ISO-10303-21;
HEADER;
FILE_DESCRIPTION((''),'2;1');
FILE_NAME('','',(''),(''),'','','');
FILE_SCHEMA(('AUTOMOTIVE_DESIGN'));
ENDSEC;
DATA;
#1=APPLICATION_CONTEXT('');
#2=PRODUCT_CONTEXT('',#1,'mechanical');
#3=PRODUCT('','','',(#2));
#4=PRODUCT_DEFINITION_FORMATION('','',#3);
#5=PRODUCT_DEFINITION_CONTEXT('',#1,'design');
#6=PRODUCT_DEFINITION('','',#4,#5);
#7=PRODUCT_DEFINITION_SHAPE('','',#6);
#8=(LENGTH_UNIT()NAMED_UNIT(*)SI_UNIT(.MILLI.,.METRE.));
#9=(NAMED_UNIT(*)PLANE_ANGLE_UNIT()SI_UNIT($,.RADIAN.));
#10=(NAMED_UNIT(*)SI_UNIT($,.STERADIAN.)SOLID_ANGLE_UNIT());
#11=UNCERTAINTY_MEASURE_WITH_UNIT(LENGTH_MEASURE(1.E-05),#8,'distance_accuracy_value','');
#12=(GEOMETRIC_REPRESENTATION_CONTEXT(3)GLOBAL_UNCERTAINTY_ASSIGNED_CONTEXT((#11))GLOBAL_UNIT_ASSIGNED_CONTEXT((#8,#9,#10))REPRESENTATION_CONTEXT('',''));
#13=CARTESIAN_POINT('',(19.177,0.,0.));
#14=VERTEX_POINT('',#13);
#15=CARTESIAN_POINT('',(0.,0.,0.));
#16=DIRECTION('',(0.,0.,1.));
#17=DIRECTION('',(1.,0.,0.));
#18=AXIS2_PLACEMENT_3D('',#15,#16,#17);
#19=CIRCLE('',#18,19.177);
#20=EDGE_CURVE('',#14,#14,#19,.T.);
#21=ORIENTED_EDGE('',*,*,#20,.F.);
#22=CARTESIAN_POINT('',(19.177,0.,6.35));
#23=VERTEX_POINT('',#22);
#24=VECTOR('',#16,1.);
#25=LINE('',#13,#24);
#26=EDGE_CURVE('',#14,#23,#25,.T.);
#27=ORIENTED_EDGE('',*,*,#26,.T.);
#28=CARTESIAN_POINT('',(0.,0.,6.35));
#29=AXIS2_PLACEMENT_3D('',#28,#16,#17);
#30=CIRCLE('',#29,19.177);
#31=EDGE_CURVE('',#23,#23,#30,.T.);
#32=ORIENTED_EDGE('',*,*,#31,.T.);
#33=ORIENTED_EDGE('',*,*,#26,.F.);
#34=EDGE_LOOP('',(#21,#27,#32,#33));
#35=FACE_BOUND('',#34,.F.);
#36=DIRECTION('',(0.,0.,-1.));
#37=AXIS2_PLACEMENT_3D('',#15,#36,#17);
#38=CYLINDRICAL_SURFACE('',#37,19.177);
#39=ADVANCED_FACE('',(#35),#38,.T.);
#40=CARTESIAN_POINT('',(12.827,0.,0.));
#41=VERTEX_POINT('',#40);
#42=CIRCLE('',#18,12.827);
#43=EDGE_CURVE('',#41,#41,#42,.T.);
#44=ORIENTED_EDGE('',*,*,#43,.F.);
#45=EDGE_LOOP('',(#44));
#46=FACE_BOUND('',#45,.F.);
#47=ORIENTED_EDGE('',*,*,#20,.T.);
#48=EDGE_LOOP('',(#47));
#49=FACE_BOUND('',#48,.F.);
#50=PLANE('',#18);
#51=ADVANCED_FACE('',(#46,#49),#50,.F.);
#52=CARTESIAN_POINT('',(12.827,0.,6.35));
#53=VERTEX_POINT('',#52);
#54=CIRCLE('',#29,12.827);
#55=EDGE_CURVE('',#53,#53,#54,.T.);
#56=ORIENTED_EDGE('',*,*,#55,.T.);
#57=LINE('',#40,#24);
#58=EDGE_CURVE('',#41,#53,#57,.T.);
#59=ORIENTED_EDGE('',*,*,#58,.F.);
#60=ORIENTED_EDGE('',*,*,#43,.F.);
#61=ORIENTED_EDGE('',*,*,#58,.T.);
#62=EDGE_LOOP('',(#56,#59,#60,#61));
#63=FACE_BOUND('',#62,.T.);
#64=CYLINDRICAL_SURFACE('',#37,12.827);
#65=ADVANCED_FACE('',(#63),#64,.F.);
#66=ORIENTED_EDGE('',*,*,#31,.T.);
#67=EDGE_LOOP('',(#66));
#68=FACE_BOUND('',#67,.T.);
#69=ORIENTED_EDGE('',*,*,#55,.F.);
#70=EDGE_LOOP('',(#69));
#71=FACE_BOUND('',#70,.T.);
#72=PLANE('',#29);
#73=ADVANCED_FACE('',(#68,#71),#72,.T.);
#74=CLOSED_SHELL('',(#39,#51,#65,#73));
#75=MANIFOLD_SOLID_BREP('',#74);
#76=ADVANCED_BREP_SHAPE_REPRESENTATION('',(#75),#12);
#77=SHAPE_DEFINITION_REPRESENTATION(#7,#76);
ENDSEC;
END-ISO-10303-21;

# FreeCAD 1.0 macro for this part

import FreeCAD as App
import Part
import Sketcher
from FreeCAD import Vector
Q = App.Units.Quantity

doc = App.newDocument("Part")
params = doc.addObject("Spreadsheet::Sheet", "Params")
for row, (alias, value) in enumerate([
    ("sketch1_diameter", "1.01 in"),
    ("sketch1_diameter2", "1.51 in"),
    ("pad1_length", "0.25 in"),
], start=1):
    params.set(f"A{row}", alias)
    params.set(f"B{row}", "=" + value)
    params.setAlias(f"B{row}", alias)

body = doc.addObject("PartDesign::Body", "Body")

sketch1 = body.newObject("Sketcher::SketchObject", "Sketch")
sketch1.AttachmentSupport = (doc.getObject("XY_Plane"), [""])
sketch1.MapMode = "FlatFace"
sketch1.addGeometry([
    Part.Circle(Vector(0, 0, 0), Vector(0, 0, 1), 19.177),
    Part.Circle(Vector(0, 0, 0), Vector(0, 0, 1), 12.827),
], False)
sketch1.addConstraint([
    Sketcher.Constraint("Coincident", 0, 3, -1, 1),
    Sketcher.Constraint("Coincident", 1, 3, -1, 1),
    Sketcher.Constraint("Diameter", 1, Q("1.01 in")),
    Sketcher.Constraint("Diameter", 0, Q("1.51 in")),
])
sketch1.setExpression("Constraints[2]", "Params.sketch1_diameter")
sketch1.setExpression("Constraints[3]", "Params.sketch1_diameter2")
pad1 = body.newObject("PartDesign::Pad", "Pad")
pad1.Profile = sketch1
pad1.setExpression("Length", "Params.pad1_length")

doc.recompute()
